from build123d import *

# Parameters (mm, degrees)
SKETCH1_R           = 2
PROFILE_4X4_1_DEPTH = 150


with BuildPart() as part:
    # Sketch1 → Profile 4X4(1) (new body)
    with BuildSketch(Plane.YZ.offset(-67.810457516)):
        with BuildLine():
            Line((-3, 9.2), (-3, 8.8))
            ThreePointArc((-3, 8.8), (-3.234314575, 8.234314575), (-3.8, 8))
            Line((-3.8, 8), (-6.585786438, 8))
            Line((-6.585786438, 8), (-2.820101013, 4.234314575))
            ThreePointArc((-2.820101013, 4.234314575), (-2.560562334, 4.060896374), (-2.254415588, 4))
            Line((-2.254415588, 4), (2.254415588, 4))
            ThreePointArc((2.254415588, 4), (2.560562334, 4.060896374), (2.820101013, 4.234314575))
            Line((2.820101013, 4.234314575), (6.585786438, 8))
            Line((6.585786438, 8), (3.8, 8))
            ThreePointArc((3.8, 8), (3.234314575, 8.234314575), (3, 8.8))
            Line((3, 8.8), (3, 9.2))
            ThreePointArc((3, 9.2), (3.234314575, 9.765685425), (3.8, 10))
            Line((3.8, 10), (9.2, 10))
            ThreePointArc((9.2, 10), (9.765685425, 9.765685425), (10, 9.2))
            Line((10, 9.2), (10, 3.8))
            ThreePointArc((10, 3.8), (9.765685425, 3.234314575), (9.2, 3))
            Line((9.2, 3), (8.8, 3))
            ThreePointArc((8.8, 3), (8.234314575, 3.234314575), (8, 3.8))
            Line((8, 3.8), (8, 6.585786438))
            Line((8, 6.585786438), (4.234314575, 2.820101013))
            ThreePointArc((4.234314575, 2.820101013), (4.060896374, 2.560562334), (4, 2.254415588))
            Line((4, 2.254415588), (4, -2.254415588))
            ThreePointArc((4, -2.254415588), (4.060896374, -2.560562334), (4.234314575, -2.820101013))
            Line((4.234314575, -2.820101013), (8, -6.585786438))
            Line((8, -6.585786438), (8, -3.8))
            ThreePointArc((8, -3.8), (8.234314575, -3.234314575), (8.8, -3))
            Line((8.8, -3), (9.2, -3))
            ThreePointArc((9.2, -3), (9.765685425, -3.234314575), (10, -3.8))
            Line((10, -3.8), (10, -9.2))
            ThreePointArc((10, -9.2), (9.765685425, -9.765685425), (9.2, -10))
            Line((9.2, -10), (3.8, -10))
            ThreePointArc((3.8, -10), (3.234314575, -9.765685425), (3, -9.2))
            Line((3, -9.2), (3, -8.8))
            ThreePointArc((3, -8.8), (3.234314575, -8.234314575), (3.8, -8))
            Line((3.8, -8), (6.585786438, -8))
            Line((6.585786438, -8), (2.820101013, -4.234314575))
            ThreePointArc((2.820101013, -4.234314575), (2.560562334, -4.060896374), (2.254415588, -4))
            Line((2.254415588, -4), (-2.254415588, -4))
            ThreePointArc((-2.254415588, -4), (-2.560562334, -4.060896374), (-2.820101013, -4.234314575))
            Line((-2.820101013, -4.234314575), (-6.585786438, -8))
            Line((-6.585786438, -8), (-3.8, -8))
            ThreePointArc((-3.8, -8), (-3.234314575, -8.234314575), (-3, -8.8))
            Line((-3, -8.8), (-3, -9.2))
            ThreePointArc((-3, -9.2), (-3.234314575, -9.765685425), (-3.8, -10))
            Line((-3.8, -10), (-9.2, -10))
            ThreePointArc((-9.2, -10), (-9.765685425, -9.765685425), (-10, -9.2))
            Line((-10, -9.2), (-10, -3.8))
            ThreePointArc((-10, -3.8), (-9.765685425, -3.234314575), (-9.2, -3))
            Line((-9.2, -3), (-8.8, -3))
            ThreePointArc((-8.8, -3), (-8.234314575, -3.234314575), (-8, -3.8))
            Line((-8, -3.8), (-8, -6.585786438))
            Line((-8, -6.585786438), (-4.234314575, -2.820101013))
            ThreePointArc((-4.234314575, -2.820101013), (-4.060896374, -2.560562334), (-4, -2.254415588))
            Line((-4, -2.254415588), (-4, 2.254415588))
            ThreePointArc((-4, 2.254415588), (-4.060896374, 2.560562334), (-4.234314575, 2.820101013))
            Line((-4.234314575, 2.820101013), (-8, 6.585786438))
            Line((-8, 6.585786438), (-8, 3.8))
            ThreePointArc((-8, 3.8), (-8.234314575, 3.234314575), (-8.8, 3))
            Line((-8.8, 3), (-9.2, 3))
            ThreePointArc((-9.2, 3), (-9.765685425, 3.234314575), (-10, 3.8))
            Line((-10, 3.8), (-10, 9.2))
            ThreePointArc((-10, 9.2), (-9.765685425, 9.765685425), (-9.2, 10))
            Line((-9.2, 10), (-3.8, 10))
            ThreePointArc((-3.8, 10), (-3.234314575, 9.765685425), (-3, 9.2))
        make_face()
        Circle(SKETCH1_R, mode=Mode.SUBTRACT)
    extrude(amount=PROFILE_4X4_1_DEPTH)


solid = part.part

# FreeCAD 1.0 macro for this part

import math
import FreeCAD as App
import Part
import Sketcher
from FreeCAD import Vector

doc = App.newDocument("Part")
body = doc.addObject("PartDesign::Body", "Body")

# Sketch on YZ plane
sketch1 = doc.addObject("Sketcher::SketchObject", "Sketch")
body.addObject(sketch1)
sketch1.AttachmentSupport = (doc.YZ_Plane, [""])
sketch1.MapMode = "FlatFace"
sketch1.AttachmentOffset = App.Placement(Vector(0, 0, -67.810458), App.Rotation())
sketch1.addGeometry(Part.LineSegment(Vector(-3, 8.8, 0), Vector(-3, 9.2, 0)), False)
sketch1.addGeometry(Part.ArcOfCircle(Part.Circle(Vector(-3.8, 9.2, 0), Vector(0, 0, 1), 0.8), math.radians(0), math.radians(90)), False)
sketch1.addGeometry(Part.LineSegment(Vector(-3.8, 10, 0), Vector(-9.2, 10, 0)), False)
sketch1.addGeometry(Part.ArcOfCircle(Part.Circle(Vector(-9.2, 9.2, 0), Vector(0, 0, 1), 0.8), math.radians(90), math.radians(180)), False)
sketch1.addGeometry(Part.LineSegment(Vector(-10, 9.2, 0), Vector(-10, 3.8, 0)), False)
sketch1.addGeometry(Part.ArcOfCircle(Part.Circle(Vector(-9.2, 3.8, 0), Vector(0, 0, 1), 0.8), math.radians(180), math.radians(270)), False)
sketch1.addGeometry(Part.LineSegment(Vector(-9.2, 3, 0), Vector(-8.8, 3, 0)), False)
sketch1.addGeometry(Part.ArcOfCircle(Part.Circle(Vector(-8.8, 3.8, 0), Vector(0, 0, 1), 0.8), math.radians(-90), math.radians(0)), False)
sketch1.addGeometry(Part.LineSegment(Vector(-8, 3.8, 0), Vector(-8, 6.59, 0)), False)
sketch1.addGeometry(Part.LineSegment(Vector(-8, 6.59, 0), Vector(-4.23, 2.82, 0)), False)
sketch1.addGeometry(Part.ArcOfCircle(Part.Circle(Vector(-4.8, 2.25, 0), Vector(0, 0, 1), 0.8), math.radians(0), math.radians(45)), False)
sketch1.addGeometry(Part.LineSegment(Vector(-4, 2.25, 0), Vector(-4, -2.25, 0)), False)
sketch1.addGeometry(Part.ArcOfCircle(Part.Circle(Vector(-4.8, -2.25, 0), Vector(0, 0, 1), 0.8), math.radians(-45), math.radians(0)), False)
sketch1.addGeometry(Part.LineSegment(Vector(-4.23, -2.82, 0), Vector(-8, -6.59, 0)), False)
sketch1.addGeometry(Part.LineSegment(Vector(-8, -6.59, 0), Vector(-8, -3.8, 0)), False)
sketch1.addGeometry(Part.ArcOfCircle(Part.Circle(Vector(-8.8, -3.8, 0), Vector(0, 0, 1), 0.8), math.radians(0), math.radians(90)), False)
sketch1.addGeometry(Part.LineSegment(Vector(-8.8, -3, 0), Vector(-9.2, -3, 0)), False)
sketch1.addGeometry(Part.ArcOfCircle(Part.Circle(Vector(-9.2, -3.8, 0), Vector(0, 0, 1), 0.8), math.radians(90), math.radians(180)), False)
sketch1.addGeometry(Part.LineSegment(Vector(-10, -3.8, 0), Vector(-10, -9.2, 0)), False)
sketch1.addGeometry(Part.ArcOfCircle(Part.Circle(Vector(-9.2, -9.2, 0), Vector(0, 0, 1), 0.8), math.radians(180), math.radians(270)), False)
sketch1.addGeometry(Part.LineSegment(Vector(-9.2, -10, 0), Vector(-3.8, -10, 0)), False)
sketch1.addGeometry(Part.ArcOfCircle(Part.Circle(Vector(-3.8, -9.2, 0), Vector(0, 0, 1), 0.8), math.radians(-90), math.radians(0)), False)
sketch1.addGeometry(Part.LineSegment(Vector(-3, -9.2, 0), Vector(-3, -8.8, 0)), False)
sketch1.addGeometry(Part.ArcOfCircle(Part.Circle(Vector(-3.8, -8.8, 0), Vector(0, 0, 1), 0.8), math.radians(0), math.radians(90)), False)
sketch1.addGeometry(Part.LineSegment(Vector(-3.8, -8, 0), Vector(-6.59, -8, 0)), False)
sketch1.addGeometry(Part.LineSegment(Vector(-6.59, -8, 0), Vector(-2.82, -4.23, 0)), False)
sketch1.addGeometry(Part.ArcOfCircle(Part.Circle(Vector(-2.25, -4.8, 0), Vector(0, 0, 1), 0.8), math.radians(90), math.radians(135)), False)
sketch1.addGeometry(Part.LineSegment(Vector(-2.25, -4, 0), Vector(2.25, -4, 0)), False)
sketch1.addGeometry(Part.ArcOfCircle(Part.Circle(Vector(2.25, -4.8, 0), Vector(0, 0, 1), 0.8), math.radians(45), math.radians(90)), False)
sketch1.addGeometry(Part.LineSegment(Vector(2.82, -4.23, 0), Vector(6.59, -8, 0)), False)
sketch1.addGeometry(Part.LineSegment(Vector(6.59, -8, 0), Vector(3.8, -8, 0)), False)
sketch1.addGeometry(Part.ArcOfCircle(Part.Circle(Vector(3.8, -8.8, 0), Vector(0, 0, 1), 0.8), math.radians(90), math.radians(180)), False)
sketch1.addGeometry(Part.LineSegment(Vector(3, -8.8, 0), Vector(3, -9.2, 0)), False)
sketch1.addGeometry(Part.ArcOfCircle(Part.Circle(Vector(3.8, -9.2, 0), Vector(0, 0, 1), 0.8), math.radians(180), math.radians(270)), False)
sketch1.addGeometry(Part.LineSegment(Vector(3.8, -10, 0), Vector(9.2, -10, 0)), False)
sketch1.addGeometry(Part.ArcOfCircle(Part.Circle(Vector(9.2, -9.2, 0), Vector(0, 0, 1), 0.8), math.radians(-90), math.radians(0)), False)
sketch1.addGeometry(Part.LineSegment(Vector(10, -9.2, 0), Vector(10, -3.8, 0)), False)
sketch1.addGeometry(Part.ArcOfCircle(Part.Circle(Vector(9.2, -3.8, 0), Vector(0, 0, 1), 0.8), math.radians(0), math.radians(90)), False)
sketch1.addGeometry(Part.LineSegment(Vector(9.2, -3, 0), Vector(8.8, -3, 0)), False)
sketch1.addGeometry(Part.ArcOfCircle(Part.Circle(Vector(8.8, -3.8, 0), Vector(0, 0, 1), 0.8), math.radians(90), math.radians(180)), False)
sketch1.addGeometry(Part.LineSegment(Vector(8, -3.8, 0), Vector(8, -6.59, 0)), False)
sketch1.addGeometry(Part.LineSegment(Vector(8, -6.59, 0), Vector(4.23, -2.82, 0)), False)
sketch1.addGeometry(Part.ArcOfCircle(Part.Circle(Vector(4.8, -2.25, 0), Vector(0, 0, 1), 0.8), math.radians(180), math.radians(225)), False)
sketch1.addGeometry(Part.LineSegment(Vector(4, -2.25, 0), Vector(4, 2.25, 0)), False)
sketch1.addGeometry(Part.ArcOfCircle(Part.Circle(Vector(4.8, 2.25, 0), Vector(0, 0, 1), 0.8), math.radians(135), math.radians(180)), False)
sketch1.addGeometry(Part.LineSegment(Vector(4.23, 2.82, 0), Vector(8, 6.59, 0)), False)
sketch1.addGeometry(Part.LineSegment(Vector(8, 6.59, 0), Vector(8, 3.8, 0)), False)
sketch1.addGeometry(Part.ArcOfCircle(Part.Circle(Vector(8.8, 3.8, 0), Vector(0, 0, 1), 0.8), math.radians(180), math.radians(270)), False)
sketch1.addGeometry(Part.LineSegment(Vector(8.8, 3, 0), Vector(9.2, 3, 0)), False)
sketch1.addGeometry(Part.ArcOfCircle(Part.Circle(Vector(9.2, 3.8, 0), Vector(0, 0, 1), 0.8), math.radians(-90), math.radians(0)), False)
sketch1.addGeometry(Part.LineSegment(Vector(10, 3.8, 0), Vector(10, 9.2, 0)), False)
sketch1.addGeometry(Part.ArcOfCircle(Part.Circle(Vector(9.2, 9.2, 0), Vector(0, 0, 1), 0.8), math.radians(0), math.radians(90)), False)
sketch1.addGeometry(Part.LineSegment(Vector(9.2, 10, 0), Vector(3.8, 10, 0)), False)
sketch1.addGeometry(Part.ArcOfCircle(Part.Circle(Vector(3.8, 9.2, 0), Vector(0, 0, 1), 0.8), math.radians(90), math.radians(180)), False)
sketch1.addGeometry(Part.LineSegment(Vector(3, 9.2, 0), Vector(3, 8.8, 0)), False)
sketch1.addGeometry(Part.ArcOfCircle(Part.Circle(Vector(3.8, 8.8, 0), Vector(0, 0, 1), 0.8), math.radians(180), math.radians(270)), False)
sketch1.addGeometry(Part.LineSegment(Vector(3.8, 8, 0), Vector(6.59, 8, 0)), False)
sketch1.addGeometry(Part.LineSegment(Vector(6.59, 8, 0), Vector(2.82, 4.23, 0)), False)
sketch1.addGeometry(Part.ArcOfCircle(Part.Circle(Vector(2.25, 4.8, 0), Vector(0, 0, 1), 0.8), math.radians(-90), math.radians(-45)), False)
sketch1.addGeometry(Part.LineSegment(Vector(2.25, 4, 0), Vector(-2.25, 4, 0)), False)
sketch1.addGeometry(Part.ArcOfCircle(Part.Circle(Vector(-2.25, 4.8, 0), Vector(0, 0, 1), 0.8), math.radians(-135), math.radians(-90)), False)
sketch1.addGeometry(Part.LineSegment(Vector(-2.82, 4.23, 0), Vector(-6.59, 8, 0)), False)
sketch1.addGeometry(Part.LineSegment(Vector(-6.59, 8, 0), Vector(-3.8, 8, 0)), False)
sketch1.addGeometry(Part.ArcOfCircle(Part.Circle(Vector(-3.8, 8.8, 0), Vector(0, 0, 1), 0.8), math.radians(-90), math.radians(0)), False)
sketch1.addGeometry(Part.Circle(Vector(0, 0, 0), Vector(0, 0, 1), 2), False)
sketch1.addConstraint(Sketcher.Constraint("Tangent", 0, 2, 1, 1))
sketch1.addConstraint(Sketcher.Constraint("Tangent", 1, 2, 2, 1))
sketch1.addConstraint(Sketcher.Constraint("Tangent", 2, 2, 3, 1))
sketch1.addConstraint(Sketcher.Constraint("Tangent", 3, 2, 4, 1))
sketch1.addConstraint(Sketcher.Constraint("Tangent", 4, 2, 5, 1))
sketch1.addConstraint(Sketcher.Constraint("Tangent", 5, 2, 6, 1))
sketch1.addConstraint(Sketcher.Constraint("Tangent", 6, 2, 7, 1))
sketch1.addConstraint(Sketcher.Constraint("Tangent", 7, 2, 8, 1))
sketch1.addConstraint(Sketcher.Constraint("Coincident", 8, 2, 9, 1))
sketch1.addConstraint(Sketcher.Constraint("Tangent", 9, 2, 10, 2))
sketch1.addConstraint(Sketcher.Constraint("Tangent", 10, 1, 11, 1))
sketch1.addConstraint(Sketcher.Constraint("Tangent", 11, 2, 12, 2))
sketch1.addConstraint(Sketcher.Constraint("Tangent", 12, 1, 13, 1))
sketch1.addConstraint(Sketcher.Constraint("Coincident", 13, 2, 14, 1))
sketch1.addConstraint(Sketcher.Constraint("Tangent", 14, 2, 15, 1))
sketch1.addConstraint(Sketcher.Constraint("Tangent", 15, 2, 16, 1))
sketch1.addConstraint(Sketcher.Constraint("Tangent", 16, 2, 17, 1))
sketch1.addConstraint(Sketcher.Constraint("Tangent", 17, 2, 18, 1))
sketch1.addConstraint(Sketcher.Constraint("Tangent", 18, 2, 19, 1))
sketch1.addConstraint(Sketcher.Constraint("Tangent", 19, 2, 20, 1))
sketch1.addConstraint(Sketcher.Constraint("Tangent", 20, 2, 21, 1))
sketch1.addConstraint(Sketcher.Constraint("Tangent", 21, 2, 22, 1))
sketch1.addConstraint(Sketcher.Constraint("Tangent", 22, 2, 23, 1))
sketch1.addConstraint(Sketcher.Constraint("Tangent", 23, 2, 24, 1))
sketch1.addConstraint(Sketcher.Constraint("Coincident", 24, 2, 25, 1))
sketch1.addConstraint(Sketcher.Constraint("Tangent", 25, 2, 26, 2))
sketch1.addConstraint(Sketcher.Constraint("Tangent", 26, 1, 27, 1))
sketch1.addConstraint(Sketcher.Constraint("Tangent", 27, 2, 28, 2))
sketch1.addConstraint(Sketcher.Constraint("Tangent", 28, 1, 29, 1))
sketch1.addConstraint(Sketcher.Constraint("Coincident", 29, 2, 30, 1))
sketch1.addConstraint(Sketcher.Constraint("Tangent", 30, 2, 31, 1))
sketch1.addConstraint(Sketcher.Constraint("Tangent", 31, 2, 32, 1))
sketch1.addConstraint(Sketcher.Constraint("Tangent", 32, 2, 33, 1))
sketch1.addConstraint(Sketcher.Constraint("Tangent", 33, 2, 34, 1))
sketch1.addConstraint(Sketcher.Constraint("Tangent", 34, 2, 35, 1))
sketch1.addConstraint(Sketcher.Constraint("Tangent", 35, 2, 36, 1))
sketch1.addConstraint(Sketcher.Constraint("Tangent", 36, 2, 37, 1))
sketch1.addConstraint(Sketcher.Constraint("Tangent", 37, 2, 38, 1))
sketch1.addConstraint(Sketcher.Constraint("Tangent", 38, 2, 39, 1))
sketch1.addConstraint(Sketcher.Constraint("Tangent", 39, 2, 40, 1))
sketch1.addConstraint(Sketcher.Constraint("Coincident", 40, 2, 41, 1))
sketch1.addConstraint(Sketcher.Constraint("Tangent", 41, 2, 42, 2))
sketch1.addConstraint(Sketcher.Constraint("Tangent", 42, 1, 43, 1))
sketch1.addConstraint(Sketcher.Constraint("Tangent", 43, 2, 44, 2))
sketch1.addConstraint(Sketcher.Constraint("Tangent", 44, 1, 45, 1))
sketch1.addConstraint(Sketcher.Constraint("Coincident", 45, 2, 46, 1))
sketch1.addConstraint(Sketcher.Constraint("Tangent", 46, 2, 47, 1))
sketch1.addConstraint(Sketcher.Constraint("Tangent", 47, 2, 48, 1))
sketch1.addConstraint(Sketcher.Constraint("Tangent", 48, 2, 49, 1))
sketch1.addConstraint(Sketcher.Constraint("Tangent", 49, 2, 50, 1))
sketch1.addConstraint(Sketcher.Constraint("Tangent", 50, 2, 51, 1))
sketch1.addConstraint(Sketcher.Constraint("Tangent", 51, 2, 52, 1))
sketch1.addConstraint(Sketcher.Constraint("Tangent", 52, 2, 53, 1))
sketch1.addConstraint(Sketcher.Constraint("Tangent", 53, 2, 54, 1))
sketch1.addConstraint(Sketcher.Constraint("Tangent", 54, 2, 55, 1))
sketch1.addConstraint(Sketcher.Constraint("Tangent", 55, 2, 56, 1))
sketch1.addConstraint(Sketcher.Constraint("Coincident", 56, 2, 57, 1))
sketch1.addConstraint(Sketcher.Constraint("Tangent", 57, 2, 58, 2))
sketch1.addConstraint(Sketcher.Constraint("Tangent", 58, 1, 59, 1))
sketch1.addConstraint(Sketcher.Constraint("Tangent", 59, 2, 60, 2))
sketch1.addConstraint(Sketcher.Constraint("Tangent", 60, 1, 61, 1))
sketch1.addConstraint(Sketcher.Constraint("Coincident", 61, 2, 62, 1))
sketch1.addConstraint(Sketcher.Constraint("Tangent", 62, 2, 63, 1))
sketch1.addConstraint(Sketcher.Constraint("Tangent", 63, 2, 0, 1))
sketch1.addConstraint(Sketcher.Constraint("Vertical", 0))
sketch1.addConstraint(Sketcher.Constraint("Horizontal", 2))
sketch1.addConstraint(Sketcher.Constraint("Vertical", 4))
sketch1.addConstraint(Sketcher.Constraint("Horizontal", 6))
sketch1.addConstraint(Sketcher.Constraint("Vertical", 8))
sketch1.addConstraint(Sketcher.Constraint("Vertical", 11))
sketch1.addConstraint(Sketcher.Constraint("Vertical", 14))
sketch1.addConstraint(Sketcher.Constraint("Horizontal", 16))
sketch1.addConstraint(Sketcher.Constraint("Vertical", 18))
sketch1.addConstraint(Sketcher.Constraint("Horizontal", 20))
sketch1.addConstraint(Sketcher.Constraint("Vertical", 22))
sketch1.addConstraint(Sketcher.Constraint("Horizontal", 24))
sketch1.addConstraint(Sketcher.Constraint("Horizontal", 27))
sketch1.addConstraint(Sketcher.Constraint("Horizontal", 30))
sketch1.addConstraint(Sketcher.Constraint("Vertical", 32))
sketch1.addConstraint(Sketcher.Constraint("Horizontal", 34))
sketch1.addConstraint(Sketcher.Constraint("Vertical", 36))
sketch1.addConstraint(Sketcher.Constraint("Horizontal", 38))
sketch1.addConstraint(Sketcher.Constraint("Vertical", 40))
sketch1.addConstraint(Sketcher.Constraint("Vertical", 43))
sketch1.addConstraint(Sketcher.Constraint("Vertical", 46))
sketch1.addConstraint(Sketcher.Constraint("Horizontal", 48))
sketch1.addConstraint(Sketcher.Constraint("Vertical", 50))
sketch1.addConstraint(Sketcher.Constraint("Horizontal", 52))
sketch1.addConstraint(Sketcher.Constraint("Vertical", 54))
sketch1.addConstraint(Sketcher.Constraint("Horizontal", 56))
sketch1.addConstraint(Sketcher.Constraint("Horizontal", 59))
sketch1.addConstraint(Sketcher.Constraint("Horizontal", 62))
sketch1.addConstraint(Sketcher.Constraint("Coincident", 64, 3, -1, 1))
sketch1.addConstraint(Sketcher.Constraint("Equal", 1, 3))
sketch1.addConstraint(Sketcher.Constraint("Equal", 3, 5))
sketch1.addConstraint(Sketcher.Constraint("Equal", 5, 7))
sketch1.addConstraint(Sketcher.Constraint("Equal", 7, 10))
sketch1.addConstraint(Sketcher.Constraint("Equal", 10, 12))
sketch1.addConstraint(Sketcher.Constraint("Equal", 12, 15))
sketch1.addConstraint(Sketcher.Constraint("Equal", 15, 17))
sketch1.addConstraint(Sketcher.Constraint("Equal", 17, 19))
sketch1.addConstraint(Sketcher.Constraint("Equal", 19, 21))
sketch1.addConstraint(Sketcher.Constraint("Equal", 21, 23))
sketch1.addConstraint(Sketcher.Constraint("Equal", 23, 26))
sketch1.addConstraint(Sketcher.Constraint("Equal", 26, 28))
sketch1.addConstraint(Sketcher.Constraint("Equal", 28, 31))
sketch1.addConstraint(Sketcher.Constraint("Equal", 31, 33))
sketch1.addConstraint(Sketcher.Constraint("Equal", 33, 35))
sketch1.addConstraint(Sketcher.Constraint("Equal", 35, 37))
sketch1.addConstraint(Sketcher.Constraint("Equal", 37, 39))
sketch1.addConstraint(Sketcher.Constraint("Equal", 39, 42))
sketch1.addConstraint(Sketcher.Constraint("Equal", 42, 44))
sketch1.addConstraint(Sketcher.Constraint("Equal", 44, 47))
sketch1.addConstraint(Sketcher.Constraint("Equal", 47, 49))
sketch1.addConstraint(Sketcher.Constraint("Equal", 49, 51))
sketch1.addConstraint(Sketcher.Constraint("Equal", 51, 53))
sketch1.addConstraint(Sketcher.Constraint("Equal", 53, 55))
sketch1.addConstraint(Sketcher.Constraint("Equal", 55, 58))
sketch1.addConstraint(Sketcher.Constraint("Equal", 58, 60))
sketch1.addConstraint(Sketcher.Constraint("Equal", 60, 63))
sketch1.addConstraint(Sketcher.Constraint("Symmetric", 1, 3, 33, 3, -1, 1))
sketch1.addConstraint(Sketcher.Constraint("Symmetric", 5, 3, 37, 3, -1, 1))
sketch1.addConstraint(Sketcher.Constraint("Symmetric", 10, 3, 42, 3, -1, 1))
sketch1.addConstraint(Sketcher.Constraint("Symmetric", 15, 3, 47, 3, -1, 1))
sketch1.addConstraint(Sketcher.Constraint("Symmetric", 19, 3, 51, 3, -1, 1))
sketch1.addConstraint(Sketcher.Constraint("Symmetric", 23, 3, 55, 3, -1, 1))
sketch1.addConstraint(Sketcher.Constraint("Symmetric", 26, 3, 58, 3, -1, 1))
sketch1.addConstraint(Sketcher.Constraint("Symmetric", 8, 2, 40, 2, -1, 1))
sketch1.addConstraint(Sketcher.Constraint("Symmetric", 12, 1, 44, 1, -1, 1))
sketch1.addConstraint(Sketcher.Constraint("Symmetric", 28, 1, 60, 1, -1, 1))
sketch1.addConstraint(Sketcher.Constraint("Symmetric", 23, 3, 31, 3, -2))
sketch1.addConstraint(Sketcher.Constraint("Symmetric", 19, 3, 35, 3, -2))
sketch1.addConstraint(Sketcher.Constraint("Symmetric", 15, 3, 39, 3, -2))
sketch1.addConstraint(Sketcher.Constraint("Symmetric", 25, 2, 28, 1, -2))
sketch1.addConstraint(Sketcher.Constraint("Symmetric", 12, 1, 41, 2, -2))
sketch1.addConstraint(Sketcher.Constraint("Symmetric", 56, 2, 61, 2, -2))
sketch1.addConstraint(Sketcher.Constraint("Perpendicular", 9, 13))
sketch1.addConstraint(Sketcher.Constraint("Parallel", 13, 25))
sketch1.addConstraint(Sketcher.Constraint("Equal", 48, 0))
sketch1.addConstraint(Sketcher.Constraint("Equal", 52, 4))
sketch1.addConstraint(Sketcher.Constraint("Equal", 62, 8))
sketch1.addConstraint(Sketcher.Constraint("Equal", 59, 11))
sketch1.addConstraint(Sketcher.Constraint("Equal", 13, 25))
sketch1.addConstraint(Sketcher.Constraint("Diameter", 64, 4.0))
sketch1.addConstraint(Sketcher.Constraint("Radius", 1, 0.8))
sketch1.addConstraint(Sketcher.Constraint("DistanceX", 2, 2, 2, 1, 5.4))
sketch1.addConstraint(Sketcher.Constraint("DistanceX", 6, 1, 6, 2, 0.4))
sketch1.addConstraint(Sketcher.Constraint("DistanceX", 0, 2, -1, 1, 3.0))
sketch1.addConstraint(Sketcher.Constraint("DistanceX", 10, 1, -1, 1, 4.0))
sketch1.addConstraint(Sketcher.Constraint("DistanceX", 27, 1, 27, 2, 4.508831))
pad1 = doc.addObject("PartDesign::Pad", "Pad")
body.addObject(pad1)
pad1.Profile = sketch1
pad1.Length = 150

doc.recompute()
